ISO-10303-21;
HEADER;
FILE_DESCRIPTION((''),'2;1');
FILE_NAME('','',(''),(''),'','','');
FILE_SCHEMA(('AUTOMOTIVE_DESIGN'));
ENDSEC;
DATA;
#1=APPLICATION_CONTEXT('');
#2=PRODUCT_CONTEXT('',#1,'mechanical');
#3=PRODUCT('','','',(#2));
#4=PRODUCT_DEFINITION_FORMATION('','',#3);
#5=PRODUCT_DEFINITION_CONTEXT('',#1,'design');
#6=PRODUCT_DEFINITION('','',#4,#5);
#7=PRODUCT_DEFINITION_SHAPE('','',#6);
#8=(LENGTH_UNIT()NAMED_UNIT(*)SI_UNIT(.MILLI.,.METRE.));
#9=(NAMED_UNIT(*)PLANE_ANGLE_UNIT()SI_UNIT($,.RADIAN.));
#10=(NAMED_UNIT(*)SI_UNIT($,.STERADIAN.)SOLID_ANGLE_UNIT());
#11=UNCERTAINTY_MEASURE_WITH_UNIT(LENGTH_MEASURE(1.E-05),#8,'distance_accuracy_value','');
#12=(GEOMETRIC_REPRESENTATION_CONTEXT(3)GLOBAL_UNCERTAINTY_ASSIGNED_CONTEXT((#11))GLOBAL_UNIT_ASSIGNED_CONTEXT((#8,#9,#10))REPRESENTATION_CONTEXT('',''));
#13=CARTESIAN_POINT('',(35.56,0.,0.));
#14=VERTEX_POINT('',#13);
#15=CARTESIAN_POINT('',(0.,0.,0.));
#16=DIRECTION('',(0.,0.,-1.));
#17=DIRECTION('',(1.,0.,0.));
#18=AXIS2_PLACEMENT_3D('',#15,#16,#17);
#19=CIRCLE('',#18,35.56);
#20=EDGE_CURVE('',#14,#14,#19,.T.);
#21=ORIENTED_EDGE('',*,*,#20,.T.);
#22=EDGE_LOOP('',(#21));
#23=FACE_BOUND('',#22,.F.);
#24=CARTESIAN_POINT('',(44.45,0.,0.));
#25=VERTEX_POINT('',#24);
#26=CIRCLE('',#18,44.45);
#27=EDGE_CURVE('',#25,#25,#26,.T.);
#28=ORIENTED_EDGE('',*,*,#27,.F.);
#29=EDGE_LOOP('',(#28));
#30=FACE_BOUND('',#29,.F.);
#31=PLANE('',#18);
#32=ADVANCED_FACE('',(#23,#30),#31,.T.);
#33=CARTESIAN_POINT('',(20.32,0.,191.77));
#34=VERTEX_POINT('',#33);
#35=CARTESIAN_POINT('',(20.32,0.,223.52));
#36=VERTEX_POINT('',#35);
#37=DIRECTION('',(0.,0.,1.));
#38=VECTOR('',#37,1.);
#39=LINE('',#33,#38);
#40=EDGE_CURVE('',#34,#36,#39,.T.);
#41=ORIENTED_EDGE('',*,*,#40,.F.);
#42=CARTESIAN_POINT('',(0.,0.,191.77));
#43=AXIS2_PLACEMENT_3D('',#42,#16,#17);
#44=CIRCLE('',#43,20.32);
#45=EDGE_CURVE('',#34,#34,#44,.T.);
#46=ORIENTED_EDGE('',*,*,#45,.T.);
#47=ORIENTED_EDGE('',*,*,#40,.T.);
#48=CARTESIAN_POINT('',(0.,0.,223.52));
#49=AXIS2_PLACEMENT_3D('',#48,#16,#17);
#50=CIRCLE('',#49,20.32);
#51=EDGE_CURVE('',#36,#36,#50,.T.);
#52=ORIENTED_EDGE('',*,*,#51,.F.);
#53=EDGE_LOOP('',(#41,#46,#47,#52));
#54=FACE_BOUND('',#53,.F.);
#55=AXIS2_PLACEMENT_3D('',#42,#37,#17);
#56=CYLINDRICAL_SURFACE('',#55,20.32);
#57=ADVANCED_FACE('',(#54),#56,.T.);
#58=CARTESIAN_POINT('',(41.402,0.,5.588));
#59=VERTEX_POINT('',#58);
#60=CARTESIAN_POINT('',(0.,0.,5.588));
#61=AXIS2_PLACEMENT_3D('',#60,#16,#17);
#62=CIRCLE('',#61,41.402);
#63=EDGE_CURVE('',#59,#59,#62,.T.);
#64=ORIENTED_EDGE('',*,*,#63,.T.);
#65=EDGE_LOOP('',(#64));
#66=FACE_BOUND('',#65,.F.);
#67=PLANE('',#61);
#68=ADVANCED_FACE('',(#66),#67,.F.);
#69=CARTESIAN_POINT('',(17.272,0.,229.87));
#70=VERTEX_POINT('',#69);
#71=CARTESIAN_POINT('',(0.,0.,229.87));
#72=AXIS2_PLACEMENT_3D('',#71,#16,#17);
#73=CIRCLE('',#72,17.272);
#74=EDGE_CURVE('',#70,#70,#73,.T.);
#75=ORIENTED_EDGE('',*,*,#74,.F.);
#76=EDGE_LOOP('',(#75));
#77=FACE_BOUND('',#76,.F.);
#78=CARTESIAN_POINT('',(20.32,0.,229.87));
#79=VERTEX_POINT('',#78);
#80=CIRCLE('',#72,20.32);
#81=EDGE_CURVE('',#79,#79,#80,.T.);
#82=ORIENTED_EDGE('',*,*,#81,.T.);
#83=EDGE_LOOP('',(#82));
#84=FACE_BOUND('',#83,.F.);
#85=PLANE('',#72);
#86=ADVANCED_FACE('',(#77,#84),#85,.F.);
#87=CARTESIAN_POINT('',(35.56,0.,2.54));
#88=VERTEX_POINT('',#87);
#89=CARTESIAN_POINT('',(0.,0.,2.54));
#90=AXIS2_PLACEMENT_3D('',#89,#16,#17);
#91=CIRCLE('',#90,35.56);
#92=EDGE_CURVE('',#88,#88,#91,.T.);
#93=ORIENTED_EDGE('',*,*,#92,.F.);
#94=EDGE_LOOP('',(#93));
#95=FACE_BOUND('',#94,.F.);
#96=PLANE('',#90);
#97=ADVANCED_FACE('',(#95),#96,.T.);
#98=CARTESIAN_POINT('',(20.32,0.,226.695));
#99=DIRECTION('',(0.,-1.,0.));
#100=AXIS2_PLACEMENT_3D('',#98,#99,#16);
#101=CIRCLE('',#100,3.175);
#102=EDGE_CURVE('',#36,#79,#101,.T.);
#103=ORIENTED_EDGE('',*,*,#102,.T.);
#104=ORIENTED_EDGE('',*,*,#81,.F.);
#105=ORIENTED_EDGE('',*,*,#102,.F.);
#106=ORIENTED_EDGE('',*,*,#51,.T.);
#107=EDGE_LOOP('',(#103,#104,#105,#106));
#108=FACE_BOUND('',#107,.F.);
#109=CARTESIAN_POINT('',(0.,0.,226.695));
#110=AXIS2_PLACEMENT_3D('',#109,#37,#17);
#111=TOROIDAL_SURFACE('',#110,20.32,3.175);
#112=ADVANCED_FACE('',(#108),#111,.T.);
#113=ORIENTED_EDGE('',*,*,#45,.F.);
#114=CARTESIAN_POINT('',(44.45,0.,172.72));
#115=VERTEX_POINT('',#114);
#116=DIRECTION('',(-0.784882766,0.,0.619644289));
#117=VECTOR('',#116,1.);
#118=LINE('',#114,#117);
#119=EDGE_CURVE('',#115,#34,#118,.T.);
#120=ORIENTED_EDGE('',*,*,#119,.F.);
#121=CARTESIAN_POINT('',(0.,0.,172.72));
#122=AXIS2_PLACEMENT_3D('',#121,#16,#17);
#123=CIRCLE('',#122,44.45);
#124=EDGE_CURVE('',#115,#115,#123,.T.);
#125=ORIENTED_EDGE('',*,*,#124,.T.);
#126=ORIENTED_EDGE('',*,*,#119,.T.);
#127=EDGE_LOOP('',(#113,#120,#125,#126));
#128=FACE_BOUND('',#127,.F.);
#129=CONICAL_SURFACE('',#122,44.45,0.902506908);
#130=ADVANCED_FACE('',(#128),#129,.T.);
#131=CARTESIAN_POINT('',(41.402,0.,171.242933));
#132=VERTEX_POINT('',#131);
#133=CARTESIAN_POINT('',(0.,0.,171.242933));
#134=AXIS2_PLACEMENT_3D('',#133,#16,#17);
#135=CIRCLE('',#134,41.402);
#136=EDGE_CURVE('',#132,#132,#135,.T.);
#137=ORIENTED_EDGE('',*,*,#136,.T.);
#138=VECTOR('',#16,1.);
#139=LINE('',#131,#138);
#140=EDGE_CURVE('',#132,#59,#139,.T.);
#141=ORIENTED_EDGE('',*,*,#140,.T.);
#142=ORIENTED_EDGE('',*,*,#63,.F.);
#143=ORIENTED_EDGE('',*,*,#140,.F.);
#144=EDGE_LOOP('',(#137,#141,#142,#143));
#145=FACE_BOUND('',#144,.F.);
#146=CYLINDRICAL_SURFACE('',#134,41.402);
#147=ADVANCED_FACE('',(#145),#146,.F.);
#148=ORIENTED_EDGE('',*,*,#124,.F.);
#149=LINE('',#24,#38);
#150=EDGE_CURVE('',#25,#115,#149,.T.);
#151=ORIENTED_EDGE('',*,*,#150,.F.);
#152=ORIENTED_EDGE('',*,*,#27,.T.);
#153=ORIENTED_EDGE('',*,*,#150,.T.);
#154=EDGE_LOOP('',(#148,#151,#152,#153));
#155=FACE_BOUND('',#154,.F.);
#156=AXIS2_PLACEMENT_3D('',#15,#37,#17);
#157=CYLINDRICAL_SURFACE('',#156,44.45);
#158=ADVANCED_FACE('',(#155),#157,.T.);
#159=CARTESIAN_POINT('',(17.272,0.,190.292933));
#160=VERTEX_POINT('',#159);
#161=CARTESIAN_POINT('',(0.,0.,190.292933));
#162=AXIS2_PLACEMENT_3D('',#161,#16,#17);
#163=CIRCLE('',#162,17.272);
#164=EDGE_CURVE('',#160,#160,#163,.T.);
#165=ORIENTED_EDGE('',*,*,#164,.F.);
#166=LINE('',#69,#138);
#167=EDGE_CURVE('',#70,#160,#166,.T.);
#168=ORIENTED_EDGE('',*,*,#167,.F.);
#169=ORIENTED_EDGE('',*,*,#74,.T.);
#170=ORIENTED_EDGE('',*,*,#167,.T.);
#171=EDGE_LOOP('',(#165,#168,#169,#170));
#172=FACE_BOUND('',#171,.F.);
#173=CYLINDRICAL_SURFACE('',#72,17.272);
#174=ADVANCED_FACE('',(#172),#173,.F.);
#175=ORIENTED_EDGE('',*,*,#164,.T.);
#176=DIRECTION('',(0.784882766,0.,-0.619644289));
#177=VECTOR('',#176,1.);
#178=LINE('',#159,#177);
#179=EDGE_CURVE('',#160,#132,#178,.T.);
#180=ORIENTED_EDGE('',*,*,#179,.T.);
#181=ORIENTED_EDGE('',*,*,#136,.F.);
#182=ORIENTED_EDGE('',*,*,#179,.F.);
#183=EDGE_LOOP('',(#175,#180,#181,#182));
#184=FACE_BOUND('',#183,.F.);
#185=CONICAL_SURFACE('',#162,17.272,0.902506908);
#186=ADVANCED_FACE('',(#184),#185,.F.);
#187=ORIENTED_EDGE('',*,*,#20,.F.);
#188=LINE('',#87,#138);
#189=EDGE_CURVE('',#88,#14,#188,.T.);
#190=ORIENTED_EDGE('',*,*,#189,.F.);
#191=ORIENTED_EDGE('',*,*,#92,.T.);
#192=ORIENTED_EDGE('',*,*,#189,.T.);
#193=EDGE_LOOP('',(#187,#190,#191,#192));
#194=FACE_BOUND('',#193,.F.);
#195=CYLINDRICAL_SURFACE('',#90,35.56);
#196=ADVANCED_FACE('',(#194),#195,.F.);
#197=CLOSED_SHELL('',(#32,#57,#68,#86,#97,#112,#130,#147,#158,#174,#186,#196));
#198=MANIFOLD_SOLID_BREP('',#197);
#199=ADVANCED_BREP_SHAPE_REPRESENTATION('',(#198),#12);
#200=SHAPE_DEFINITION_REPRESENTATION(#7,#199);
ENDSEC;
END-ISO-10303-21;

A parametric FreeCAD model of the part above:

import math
import FreeCAD as App
import Part
import Sketcher

V = App.Vector
Q = App.Units.Quantity

doc = App.newDocument("Part")
params = doc.addObject("Spreadsheet::Sheet", "Params")
for row, (alias, value) in enumerate([
    ("sketch1_width", "1.4 in"),
    ("sketch1_height", "6.8 in"),
    ("sketch1_height2", "0.1 in"),
    ("sketch1_radius", "0.125 in"),
    ("sketch1_width2", "0.35 in"),
    ("revolution_angle", "360 deg"),
], start=1):
    params.set(f"A{row}", alias)
    params.set(f"B{row}", "=" + value)
    params.setAlias(f"B{row}", alias)

body = doc.addObject("PartDesign::Body", "Body")

sketch1 = body.newObject("Sketcher::SketchObject", "Sketch")
sketch1.AttachmentSupport = (doc.getObject("XZ_Plane"), [""])
sketch1.MapMode = "FlatFace"
sketch1.addGeometry([
    Part.LineSegment(V(35.6, 0, 0), V(44.5, 0, 0)),
    Part.LineSegment(V(44.5, 0, 0), V(44.5, 172.7, 0)),
    Part.LineSegment(V(44.5, 172.7, 0), V(20.3, 191.8, 0)),
    Part.LineSegment(V(20.3, 191.8, 0), V(20.3, 223.5, 0)),
    Part.ArcOfCircle(Part.Circle(V(20.3, 226.7, 0), V(0, 0, 1), 3.2), math.radians(-90), math.radians(90)),
    Part.LineSegment(V(20.3, 229.9, 0), V(17.3, 229.9, 0)),
    Part.LineSegment(V(17.3, 229.9, 0), V(17.3, 190.3, 0)),
    Part.LineSegment(V(17.3, 190.3, 0), V(41.4, 171.2, 0)),
    Part.LineSegment(V(41.4, 171.2, 0), V(41.4, 5.6, 0)),
    Part.LineSegment(V(41.4, 5.6, 0), V(0, 5.6, 0)),
    Part.LineSegment(V(0, 5.6, 0), V(0, 2.5, 0)),
    Part.LineSegment(V(0, 2.5, 0), V(35.6, 2.5, 0)),
    Part.LineSegment(V(35.6, 2.5, 0), V(35.6, 0, 0)),
], False)
sketch1.addConstraint([
    Sketcher.Constraint("Coincident", 0, 2, 1, 1),
    Sketcher.Constraint("Coincident", 1, 2, 2, 1),
    Sketcher.Constraint("Coincident", 2, 2, 3, 1),
    Sketcher.Constraint("Coincident", 3, 2, 4, 1),
    Sketcher.Constraint("Tangent", 4, 2, 5, 1),
    Sketcher.Constraint("Coincident", 5, 2, 6, 1),
    Sketcher.Constraint("Coincident", 6, 2, 7, 1),
    Sketcher.Constraint("Coincident", 7, 2, 8, 1),
    Sketcher.Constraint("Coincident", 8, 2, 9, 1),
    Sketcher.Constraint("Coincident", 9, 2, 10, 1),
    Sketcher.Constraint("Coincident", 10, 2, 11, 1),
    Sketcher.Constraint("Coincident", 11, 2, 12, 1),
    Sketcher.Constraint("Coincident", 12, 2, 0, 1),
    Sketcher.Constraint("Horizontal", 0),
    Sketcher.Constraint("Vertical", 1),
    Sketcher.Constraint("Vertical", 3),
    Sketcher.Constraint("Horizontal", 5),
    Sketcher.Constraint("Vertical", 6),
    Sketcher.Constraint("Vertical", 8),
    Sketcher.Constraint("Horizontal", 9),
    Sketcher.Constraint("Vertical", 10),
    Sketcher.Constraint("Horizontal", 11),
    Sketcher.Constraint("Vertical", 12),
    Sketcher.Constraint("PointOnObject", 0, 2, -1),
    Sketcher.Constraint("PointOnObject", 9, 2, -2),
    Sketcher.Constraint("Parallel", 2, 7),
    Sketcher.Constraint("Vertical", 4, 3, 2, 2),
    Sketcher.Constraint("Equal", 5, 10),
    Sketcher.Constraint("Equal", 2, 7),
    Sketcher.Constraint("DistanceX", 11, 1, 11, 2, Q("1.4 in")),
    Sketcher.Constraint("DistanceY", 1, 1, 1, 2, Q("6.8 in")),
    Sketcher.Constraint("DistanceY", 12, 2, 12, 1, Q("0.1 in")),
    Sketcher.Constraint("Radius", 4, Q("0.125 in")),
    Sketcher.Constraint("DistanceY", 1, 2, 3, 2, Q("2 in")),
    Sketcher.Constraint("DistanceX", 0, 1, 0, 2, Q("0.35 in")),
    Sketcher.Constraint("DistanceX", 5, 2, 5, 1, Q("0.12 in")),
    Sketcher.Constraint("DistanceY", 3, 1, 3, 2, Q("1.25 in")),
    Sketcher.Constraint("DistanceX", -1, 1, 4, 3, Q("0.8 in")),
    Sketcher.Constraint("DistanceY", 6, 2, 6, 1, Q("39.577067 mm")),
])
sketch1.setExpression("Constraints[29]", "Params.sketch1_width")
sketch1.setExpression("Constraints[30]", "Params.sketch1_height")
sketch1.setExpression("Constraints[31]", "Params.sketch1_height2")
sketch1.setExpression("Constraints[32]", "Params.sketch1_radius")
sketch1.setExpression("Constraints[34]", "Params.sketch1_width2")
revolution = body.newObject("PartDesign::Revolution", "Revolution")
revolution.Profile = sketch1
revolution.ReferenceAxis = (sketch1, ["V_Axis"])
revolution.setExpression("Angle", "Params.revolution_angle")

doc.recompute()
